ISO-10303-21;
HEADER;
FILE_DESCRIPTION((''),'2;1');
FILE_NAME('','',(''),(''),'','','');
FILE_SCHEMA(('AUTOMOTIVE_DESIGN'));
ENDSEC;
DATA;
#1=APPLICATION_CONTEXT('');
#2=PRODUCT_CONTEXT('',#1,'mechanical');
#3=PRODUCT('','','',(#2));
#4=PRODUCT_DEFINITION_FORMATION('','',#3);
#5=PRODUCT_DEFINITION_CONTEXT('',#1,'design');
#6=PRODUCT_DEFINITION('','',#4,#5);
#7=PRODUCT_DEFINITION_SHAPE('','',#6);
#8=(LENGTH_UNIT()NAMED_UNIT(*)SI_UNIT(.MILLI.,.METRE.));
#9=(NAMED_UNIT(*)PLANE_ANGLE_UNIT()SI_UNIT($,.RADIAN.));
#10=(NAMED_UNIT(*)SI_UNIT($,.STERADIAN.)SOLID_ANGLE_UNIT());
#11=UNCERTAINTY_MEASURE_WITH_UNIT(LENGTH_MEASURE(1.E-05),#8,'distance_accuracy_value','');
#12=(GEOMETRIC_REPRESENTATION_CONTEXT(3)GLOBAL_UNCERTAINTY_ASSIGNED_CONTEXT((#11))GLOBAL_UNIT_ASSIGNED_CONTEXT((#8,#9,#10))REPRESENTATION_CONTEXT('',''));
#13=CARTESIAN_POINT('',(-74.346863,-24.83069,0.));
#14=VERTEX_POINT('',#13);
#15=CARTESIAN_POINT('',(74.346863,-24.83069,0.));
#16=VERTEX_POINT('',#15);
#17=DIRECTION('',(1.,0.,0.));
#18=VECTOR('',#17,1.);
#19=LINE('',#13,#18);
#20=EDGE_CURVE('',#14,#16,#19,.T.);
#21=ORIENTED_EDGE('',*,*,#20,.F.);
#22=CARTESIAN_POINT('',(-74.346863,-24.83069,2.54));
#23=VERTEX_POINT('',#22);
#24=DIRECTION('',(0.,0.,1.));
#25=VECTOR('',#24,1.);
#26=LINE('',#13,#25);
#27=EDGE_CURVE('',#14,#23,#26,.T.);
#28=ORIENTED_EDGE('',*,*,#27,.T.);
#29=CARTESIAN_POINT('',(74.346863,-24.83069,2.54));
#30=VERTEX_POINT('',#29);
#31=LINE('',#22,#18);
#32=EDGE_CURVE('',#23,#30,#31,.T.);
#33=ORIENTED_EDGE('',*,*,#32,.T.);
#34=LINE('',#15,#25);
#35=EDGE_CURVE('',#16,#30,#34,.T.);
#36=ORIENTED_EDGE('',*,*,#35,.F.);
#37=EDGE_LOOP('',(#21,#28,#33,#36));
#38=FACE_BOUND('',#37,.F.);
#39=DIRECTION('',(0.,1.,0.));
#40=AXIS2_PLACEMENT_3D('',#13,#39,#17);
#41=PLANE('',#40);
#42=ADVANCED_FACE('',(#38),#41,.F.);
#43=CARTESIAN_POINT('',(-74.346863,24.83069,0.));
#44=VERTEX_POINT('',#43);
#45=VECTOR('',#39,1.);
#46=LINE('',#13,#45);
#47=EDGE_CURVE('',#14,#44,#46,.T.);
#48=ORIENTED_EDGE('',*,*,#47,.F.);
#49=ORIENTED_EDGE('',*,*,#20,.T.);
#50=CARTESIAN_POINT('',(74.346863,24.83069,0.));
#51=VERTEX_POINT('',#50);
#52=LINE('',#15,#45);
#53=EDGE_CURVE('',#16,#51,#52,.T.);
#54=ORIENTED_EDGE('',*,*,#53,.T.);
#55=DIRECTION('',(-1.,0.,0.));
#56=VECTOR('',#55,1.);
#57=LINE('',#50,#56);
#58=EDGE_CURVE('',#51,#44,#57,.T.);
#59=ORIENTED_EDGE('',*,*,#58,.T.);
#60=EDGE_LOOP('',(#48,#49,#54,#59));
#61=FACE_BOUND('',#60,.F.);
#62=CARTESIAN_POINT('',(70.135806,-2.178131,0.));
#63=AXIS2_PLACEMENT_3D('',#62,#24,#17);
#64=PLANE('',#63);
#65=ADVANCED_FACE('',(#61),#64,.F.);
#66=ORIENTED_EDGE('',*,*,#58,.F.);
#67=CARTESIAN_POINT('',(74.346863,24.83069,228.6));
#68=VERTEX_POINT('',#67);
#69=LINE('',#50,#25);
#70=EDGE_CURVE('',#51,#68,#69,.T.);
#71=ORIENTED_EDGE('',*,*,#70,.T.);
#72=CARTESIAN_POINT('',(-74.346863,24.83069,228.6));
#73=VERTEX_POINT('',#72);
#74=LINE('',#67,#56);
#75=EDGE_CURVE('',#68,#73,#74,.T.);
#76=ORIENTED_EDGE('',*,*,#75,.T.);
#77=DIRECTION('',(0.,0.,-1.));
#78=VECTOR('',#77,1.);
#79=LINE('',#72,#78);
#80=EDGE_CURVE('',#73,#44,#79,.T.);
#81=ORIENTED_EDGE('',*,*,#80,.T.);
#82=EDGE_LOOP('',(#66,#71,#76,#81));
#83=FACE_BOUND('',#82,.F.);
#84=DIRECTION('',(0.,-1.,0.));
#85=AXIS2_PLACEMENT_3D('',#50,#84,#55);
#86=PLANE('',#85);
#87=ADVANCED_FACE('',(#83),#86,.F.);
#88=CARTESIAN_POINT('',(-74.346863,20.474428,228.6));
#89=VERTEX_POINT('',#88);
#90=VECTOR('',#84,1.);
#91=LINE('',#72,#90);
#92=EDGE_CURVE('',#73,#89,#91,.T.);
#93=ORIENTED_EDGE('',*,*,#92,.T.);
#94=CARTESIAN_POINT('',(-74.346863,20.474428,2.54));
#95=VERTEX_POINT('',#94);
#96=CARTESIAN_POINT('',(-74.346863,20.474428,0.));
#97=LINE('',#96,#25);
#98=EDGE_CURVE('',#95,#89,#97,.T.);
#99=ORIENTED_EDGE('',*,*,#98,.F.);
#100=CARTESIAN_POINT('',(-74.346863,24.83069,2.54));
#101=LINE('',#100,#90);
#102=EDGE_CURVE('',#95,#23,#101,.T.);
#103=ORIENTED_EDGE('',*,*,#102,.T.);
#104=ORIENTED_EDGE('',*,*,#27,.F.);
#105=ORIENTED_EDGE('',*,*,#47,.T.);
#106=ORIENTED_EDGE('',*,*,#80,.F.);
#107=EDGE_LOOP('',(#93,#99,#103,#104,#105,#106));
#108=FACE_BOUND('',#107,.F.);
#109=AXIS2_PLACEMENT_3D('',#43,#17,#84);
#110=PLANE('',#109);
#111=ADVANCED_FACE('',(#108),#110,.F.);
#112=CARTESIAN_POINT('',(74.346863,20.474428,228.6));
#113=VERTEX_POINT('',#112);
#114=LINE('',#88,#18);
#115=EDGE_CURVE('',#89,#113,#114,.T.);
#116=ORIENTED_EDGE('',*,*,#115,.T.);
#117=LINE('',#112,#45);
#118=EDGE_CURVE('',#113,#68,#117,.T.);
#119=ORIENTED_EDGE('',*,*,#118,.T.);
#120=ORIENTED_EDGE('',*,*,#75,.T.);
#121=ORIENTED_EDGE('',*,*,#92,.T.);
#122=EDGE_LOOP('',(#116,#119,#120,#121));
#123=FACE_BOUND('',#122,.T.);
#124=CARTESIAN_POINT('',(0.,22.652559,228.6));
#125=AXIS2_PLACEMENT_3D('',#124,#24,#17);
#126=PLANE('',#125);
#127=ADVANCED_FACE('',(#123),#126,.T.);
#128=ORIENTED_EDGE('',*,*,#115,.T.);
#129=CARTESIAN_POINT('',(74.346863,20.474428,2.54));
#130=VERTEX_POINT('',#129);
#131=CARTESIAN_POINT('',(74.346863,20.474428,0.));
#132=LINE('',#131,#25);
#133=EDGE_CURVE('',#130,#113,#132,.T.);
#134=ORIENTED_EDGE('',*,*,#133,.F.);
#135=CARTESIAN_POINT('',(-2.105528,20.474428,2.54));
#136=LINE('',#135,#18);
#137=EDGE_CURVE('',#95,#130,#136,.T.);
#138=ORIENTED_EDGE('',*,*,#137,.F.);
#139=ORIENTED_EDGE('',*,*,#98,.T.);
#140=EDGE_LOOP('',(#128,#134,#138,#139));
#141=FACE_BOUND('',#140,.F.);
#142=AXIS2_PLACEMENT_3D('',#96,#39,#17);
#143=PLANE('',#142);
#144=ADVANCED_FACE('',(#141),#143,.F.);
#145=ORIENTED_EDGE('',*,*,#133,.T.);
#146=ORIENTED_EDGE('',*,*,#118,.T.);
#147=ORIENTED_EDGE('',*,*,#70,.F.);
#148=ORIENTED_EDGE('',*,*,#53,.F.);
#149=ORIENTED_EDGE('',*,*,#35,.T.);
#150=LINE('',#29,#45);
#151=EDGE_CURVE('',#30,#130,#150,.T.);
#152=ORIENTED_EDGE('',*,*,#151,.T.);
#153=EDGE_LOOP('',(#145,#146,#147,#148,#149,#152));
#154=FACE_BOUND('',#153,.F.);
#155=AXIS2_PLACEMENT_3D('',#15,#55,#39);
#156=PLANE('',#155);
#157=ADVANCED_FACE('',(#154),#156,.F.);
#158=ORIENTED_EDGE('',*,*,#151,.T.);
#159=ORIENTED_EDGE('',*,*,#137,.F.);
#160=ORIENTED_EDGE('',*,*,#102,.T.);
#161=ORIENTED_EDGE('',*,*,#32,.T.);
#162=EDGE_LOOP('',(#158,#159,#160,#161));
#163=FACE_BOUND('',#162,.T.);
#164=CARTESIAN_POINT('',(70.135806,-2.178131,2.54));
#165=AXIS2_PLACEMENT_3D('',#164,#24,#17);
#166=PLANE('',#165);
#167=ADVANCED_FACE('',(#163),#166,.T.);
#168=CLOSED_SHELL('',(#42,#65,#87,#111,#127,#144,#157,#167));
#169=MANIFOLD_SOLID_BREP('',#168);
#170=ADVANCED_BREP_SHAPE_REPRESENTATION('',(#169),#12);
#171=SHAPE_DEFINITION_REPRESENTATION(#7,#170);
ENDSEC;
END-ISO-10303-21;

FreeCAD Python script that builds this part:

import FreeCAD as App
import Part
import Sketcher
Q = App.Units.Quantity

doc = App.newDocument("Part")
body = doc.addObject("PartDesign::Body", "Body")

# Sketch on XY plane
sketch1 = body.newObject("Sketcher::SketchObject", "Sketch")
sketch1.AttachmentSupport = (doc.getObject("XY_Plane"), [""])
sketch1.MapMode = "FlatFace"
sketch1.addGeometry(Part.LineSegment(App.Vector(74.3, 20.5, 0), App.Vector(74.3, 24.8, 0)), False)
sketch1.addGeometry(Part.LineSegment(App.Vector(74.3, 24.8, 0), App.Vector(-74.3, 24.8, 0)), False)
sketch1.addGeometry(Part.LineSegment(App.Vector(-74.3, 24.8, 0), App.Vector(-74.3, 20.5, 0)), False)
sketch1.addGeometry(Part.LineSegment(App.Vector(-74.3, 20.5, 0), App.Vector(74.3, 20.5, 0)), False)
sketch1.addConstraint(Sketcher.Constraint("Coincident", 0, 2, 1, 1))
sketch1.addConstraint(Sketcher.Constraint("Coincident", 1, 2, 2, 1))
sketch1.addConstraint(Sketcher.Constraint("Coincident", 2, 2, 3, 1))
sketch1.addConstraint(Sketcher.Constraint("Coincident", 3, 2, 0, 1))
sketch1.addConstraint(Sketcher.Constraint("Vertical", 0))
sketch1.addConstraint(Sketcher.Constraint("Horizontal", 1))
sketch1.addConstraint(Sketcher.Constraint("Vertical", 2))
sketch1.addConstraint(Sketcher.Constraint("Horizontal", 3))
sketch1.addConstraint(Sketcher.Constraint("DistanceY", 0, 1, 0, 2, 4.356261))
sketch1.addConstraint(Sketcher.Constraint("DistanceX", 1, 2, 1, 1, 148.693725))
sketch1.addConstraint(Sketcher.Constraint("DistanceY", -1, 1, 0, 2, 24.83069))
sketch1.addConstraint(Sketcher.Constraint("DistanceX", -1, 1, 0, 2, 74.346863))
pad1 = body.newObject("PartDesign::Pad", "Pad")
pad1.Profile = sketch1
pad1.Length = Q("9 in")

# Sketch on XY plane
sketch2 = body.newObject("Sketcher::SketchObject", "Sketch001")
sketch2.AttachmentSupport = (doc.getObject("XY_Plane"), [""])
sketch2.MapMode = "FlatFace"
sketch2.addGeometry(Part.LineSegment(App.Vector(74, -25, 0), App.Vector(74, 25, 0)), False)
sketch2.addGeometry(Part.LineSegment(App.Vector(74, 25, 0), App.Vector(-74, 25, 0)), False)
sketch2.addGeometry(Part.LineSegment(App.Vector(-74, 25, 0), App.Vector(-74, -25, 0)), False)
sketch2.addGeometry(Part.LineSegment(App.Vector(-74, -25, 0), App.Vector(74, -25, 0)), False)
sketch2.addConstraint(Sketcher.Constraint("Coincident", 0, 2, 1, 1))
sketch2.addConstraint(Sketcher.Constraint("Coincident", 1, 2, 2, 1))
sketch2.addConstraint(Sketcher.Constraint("Coincident", 2, 2, 3, 1))
sketch2.addConstraint(Sketcher.Constraint("Coincident", 3, 2, 0, 1))
sketch2.addConstraint(Sketcher.Constraint("Vertical", 0))
sketch2.addConstraint(Sketcher.Constraint("Horizontal", 1))
sketch2.addConstraint(Sketcher.Constraint("Vertical", 2))
sketch2.addConstraint(Sketcher.Constraint("Horizontal", 3))
sketch2.addConstraint(Sketcher.Constraint("Symmetric", 0, 2, 2, 2, -1, 1))
sketch2.addConstraint(Sketcher.Constraint("DistanceY", 0, 1, 0, 2, 49.661379))
sketch2.addConstraint(Sketcher.Constraint("DistanceX", 1, 2, 1, 1, 148.693725))
pad2 = body.newObject("PartDesign::Pad", "Pad001")
pad2.Profile = sketch2
pad2.Length = Q("0.1 in")

doc.recompute()
